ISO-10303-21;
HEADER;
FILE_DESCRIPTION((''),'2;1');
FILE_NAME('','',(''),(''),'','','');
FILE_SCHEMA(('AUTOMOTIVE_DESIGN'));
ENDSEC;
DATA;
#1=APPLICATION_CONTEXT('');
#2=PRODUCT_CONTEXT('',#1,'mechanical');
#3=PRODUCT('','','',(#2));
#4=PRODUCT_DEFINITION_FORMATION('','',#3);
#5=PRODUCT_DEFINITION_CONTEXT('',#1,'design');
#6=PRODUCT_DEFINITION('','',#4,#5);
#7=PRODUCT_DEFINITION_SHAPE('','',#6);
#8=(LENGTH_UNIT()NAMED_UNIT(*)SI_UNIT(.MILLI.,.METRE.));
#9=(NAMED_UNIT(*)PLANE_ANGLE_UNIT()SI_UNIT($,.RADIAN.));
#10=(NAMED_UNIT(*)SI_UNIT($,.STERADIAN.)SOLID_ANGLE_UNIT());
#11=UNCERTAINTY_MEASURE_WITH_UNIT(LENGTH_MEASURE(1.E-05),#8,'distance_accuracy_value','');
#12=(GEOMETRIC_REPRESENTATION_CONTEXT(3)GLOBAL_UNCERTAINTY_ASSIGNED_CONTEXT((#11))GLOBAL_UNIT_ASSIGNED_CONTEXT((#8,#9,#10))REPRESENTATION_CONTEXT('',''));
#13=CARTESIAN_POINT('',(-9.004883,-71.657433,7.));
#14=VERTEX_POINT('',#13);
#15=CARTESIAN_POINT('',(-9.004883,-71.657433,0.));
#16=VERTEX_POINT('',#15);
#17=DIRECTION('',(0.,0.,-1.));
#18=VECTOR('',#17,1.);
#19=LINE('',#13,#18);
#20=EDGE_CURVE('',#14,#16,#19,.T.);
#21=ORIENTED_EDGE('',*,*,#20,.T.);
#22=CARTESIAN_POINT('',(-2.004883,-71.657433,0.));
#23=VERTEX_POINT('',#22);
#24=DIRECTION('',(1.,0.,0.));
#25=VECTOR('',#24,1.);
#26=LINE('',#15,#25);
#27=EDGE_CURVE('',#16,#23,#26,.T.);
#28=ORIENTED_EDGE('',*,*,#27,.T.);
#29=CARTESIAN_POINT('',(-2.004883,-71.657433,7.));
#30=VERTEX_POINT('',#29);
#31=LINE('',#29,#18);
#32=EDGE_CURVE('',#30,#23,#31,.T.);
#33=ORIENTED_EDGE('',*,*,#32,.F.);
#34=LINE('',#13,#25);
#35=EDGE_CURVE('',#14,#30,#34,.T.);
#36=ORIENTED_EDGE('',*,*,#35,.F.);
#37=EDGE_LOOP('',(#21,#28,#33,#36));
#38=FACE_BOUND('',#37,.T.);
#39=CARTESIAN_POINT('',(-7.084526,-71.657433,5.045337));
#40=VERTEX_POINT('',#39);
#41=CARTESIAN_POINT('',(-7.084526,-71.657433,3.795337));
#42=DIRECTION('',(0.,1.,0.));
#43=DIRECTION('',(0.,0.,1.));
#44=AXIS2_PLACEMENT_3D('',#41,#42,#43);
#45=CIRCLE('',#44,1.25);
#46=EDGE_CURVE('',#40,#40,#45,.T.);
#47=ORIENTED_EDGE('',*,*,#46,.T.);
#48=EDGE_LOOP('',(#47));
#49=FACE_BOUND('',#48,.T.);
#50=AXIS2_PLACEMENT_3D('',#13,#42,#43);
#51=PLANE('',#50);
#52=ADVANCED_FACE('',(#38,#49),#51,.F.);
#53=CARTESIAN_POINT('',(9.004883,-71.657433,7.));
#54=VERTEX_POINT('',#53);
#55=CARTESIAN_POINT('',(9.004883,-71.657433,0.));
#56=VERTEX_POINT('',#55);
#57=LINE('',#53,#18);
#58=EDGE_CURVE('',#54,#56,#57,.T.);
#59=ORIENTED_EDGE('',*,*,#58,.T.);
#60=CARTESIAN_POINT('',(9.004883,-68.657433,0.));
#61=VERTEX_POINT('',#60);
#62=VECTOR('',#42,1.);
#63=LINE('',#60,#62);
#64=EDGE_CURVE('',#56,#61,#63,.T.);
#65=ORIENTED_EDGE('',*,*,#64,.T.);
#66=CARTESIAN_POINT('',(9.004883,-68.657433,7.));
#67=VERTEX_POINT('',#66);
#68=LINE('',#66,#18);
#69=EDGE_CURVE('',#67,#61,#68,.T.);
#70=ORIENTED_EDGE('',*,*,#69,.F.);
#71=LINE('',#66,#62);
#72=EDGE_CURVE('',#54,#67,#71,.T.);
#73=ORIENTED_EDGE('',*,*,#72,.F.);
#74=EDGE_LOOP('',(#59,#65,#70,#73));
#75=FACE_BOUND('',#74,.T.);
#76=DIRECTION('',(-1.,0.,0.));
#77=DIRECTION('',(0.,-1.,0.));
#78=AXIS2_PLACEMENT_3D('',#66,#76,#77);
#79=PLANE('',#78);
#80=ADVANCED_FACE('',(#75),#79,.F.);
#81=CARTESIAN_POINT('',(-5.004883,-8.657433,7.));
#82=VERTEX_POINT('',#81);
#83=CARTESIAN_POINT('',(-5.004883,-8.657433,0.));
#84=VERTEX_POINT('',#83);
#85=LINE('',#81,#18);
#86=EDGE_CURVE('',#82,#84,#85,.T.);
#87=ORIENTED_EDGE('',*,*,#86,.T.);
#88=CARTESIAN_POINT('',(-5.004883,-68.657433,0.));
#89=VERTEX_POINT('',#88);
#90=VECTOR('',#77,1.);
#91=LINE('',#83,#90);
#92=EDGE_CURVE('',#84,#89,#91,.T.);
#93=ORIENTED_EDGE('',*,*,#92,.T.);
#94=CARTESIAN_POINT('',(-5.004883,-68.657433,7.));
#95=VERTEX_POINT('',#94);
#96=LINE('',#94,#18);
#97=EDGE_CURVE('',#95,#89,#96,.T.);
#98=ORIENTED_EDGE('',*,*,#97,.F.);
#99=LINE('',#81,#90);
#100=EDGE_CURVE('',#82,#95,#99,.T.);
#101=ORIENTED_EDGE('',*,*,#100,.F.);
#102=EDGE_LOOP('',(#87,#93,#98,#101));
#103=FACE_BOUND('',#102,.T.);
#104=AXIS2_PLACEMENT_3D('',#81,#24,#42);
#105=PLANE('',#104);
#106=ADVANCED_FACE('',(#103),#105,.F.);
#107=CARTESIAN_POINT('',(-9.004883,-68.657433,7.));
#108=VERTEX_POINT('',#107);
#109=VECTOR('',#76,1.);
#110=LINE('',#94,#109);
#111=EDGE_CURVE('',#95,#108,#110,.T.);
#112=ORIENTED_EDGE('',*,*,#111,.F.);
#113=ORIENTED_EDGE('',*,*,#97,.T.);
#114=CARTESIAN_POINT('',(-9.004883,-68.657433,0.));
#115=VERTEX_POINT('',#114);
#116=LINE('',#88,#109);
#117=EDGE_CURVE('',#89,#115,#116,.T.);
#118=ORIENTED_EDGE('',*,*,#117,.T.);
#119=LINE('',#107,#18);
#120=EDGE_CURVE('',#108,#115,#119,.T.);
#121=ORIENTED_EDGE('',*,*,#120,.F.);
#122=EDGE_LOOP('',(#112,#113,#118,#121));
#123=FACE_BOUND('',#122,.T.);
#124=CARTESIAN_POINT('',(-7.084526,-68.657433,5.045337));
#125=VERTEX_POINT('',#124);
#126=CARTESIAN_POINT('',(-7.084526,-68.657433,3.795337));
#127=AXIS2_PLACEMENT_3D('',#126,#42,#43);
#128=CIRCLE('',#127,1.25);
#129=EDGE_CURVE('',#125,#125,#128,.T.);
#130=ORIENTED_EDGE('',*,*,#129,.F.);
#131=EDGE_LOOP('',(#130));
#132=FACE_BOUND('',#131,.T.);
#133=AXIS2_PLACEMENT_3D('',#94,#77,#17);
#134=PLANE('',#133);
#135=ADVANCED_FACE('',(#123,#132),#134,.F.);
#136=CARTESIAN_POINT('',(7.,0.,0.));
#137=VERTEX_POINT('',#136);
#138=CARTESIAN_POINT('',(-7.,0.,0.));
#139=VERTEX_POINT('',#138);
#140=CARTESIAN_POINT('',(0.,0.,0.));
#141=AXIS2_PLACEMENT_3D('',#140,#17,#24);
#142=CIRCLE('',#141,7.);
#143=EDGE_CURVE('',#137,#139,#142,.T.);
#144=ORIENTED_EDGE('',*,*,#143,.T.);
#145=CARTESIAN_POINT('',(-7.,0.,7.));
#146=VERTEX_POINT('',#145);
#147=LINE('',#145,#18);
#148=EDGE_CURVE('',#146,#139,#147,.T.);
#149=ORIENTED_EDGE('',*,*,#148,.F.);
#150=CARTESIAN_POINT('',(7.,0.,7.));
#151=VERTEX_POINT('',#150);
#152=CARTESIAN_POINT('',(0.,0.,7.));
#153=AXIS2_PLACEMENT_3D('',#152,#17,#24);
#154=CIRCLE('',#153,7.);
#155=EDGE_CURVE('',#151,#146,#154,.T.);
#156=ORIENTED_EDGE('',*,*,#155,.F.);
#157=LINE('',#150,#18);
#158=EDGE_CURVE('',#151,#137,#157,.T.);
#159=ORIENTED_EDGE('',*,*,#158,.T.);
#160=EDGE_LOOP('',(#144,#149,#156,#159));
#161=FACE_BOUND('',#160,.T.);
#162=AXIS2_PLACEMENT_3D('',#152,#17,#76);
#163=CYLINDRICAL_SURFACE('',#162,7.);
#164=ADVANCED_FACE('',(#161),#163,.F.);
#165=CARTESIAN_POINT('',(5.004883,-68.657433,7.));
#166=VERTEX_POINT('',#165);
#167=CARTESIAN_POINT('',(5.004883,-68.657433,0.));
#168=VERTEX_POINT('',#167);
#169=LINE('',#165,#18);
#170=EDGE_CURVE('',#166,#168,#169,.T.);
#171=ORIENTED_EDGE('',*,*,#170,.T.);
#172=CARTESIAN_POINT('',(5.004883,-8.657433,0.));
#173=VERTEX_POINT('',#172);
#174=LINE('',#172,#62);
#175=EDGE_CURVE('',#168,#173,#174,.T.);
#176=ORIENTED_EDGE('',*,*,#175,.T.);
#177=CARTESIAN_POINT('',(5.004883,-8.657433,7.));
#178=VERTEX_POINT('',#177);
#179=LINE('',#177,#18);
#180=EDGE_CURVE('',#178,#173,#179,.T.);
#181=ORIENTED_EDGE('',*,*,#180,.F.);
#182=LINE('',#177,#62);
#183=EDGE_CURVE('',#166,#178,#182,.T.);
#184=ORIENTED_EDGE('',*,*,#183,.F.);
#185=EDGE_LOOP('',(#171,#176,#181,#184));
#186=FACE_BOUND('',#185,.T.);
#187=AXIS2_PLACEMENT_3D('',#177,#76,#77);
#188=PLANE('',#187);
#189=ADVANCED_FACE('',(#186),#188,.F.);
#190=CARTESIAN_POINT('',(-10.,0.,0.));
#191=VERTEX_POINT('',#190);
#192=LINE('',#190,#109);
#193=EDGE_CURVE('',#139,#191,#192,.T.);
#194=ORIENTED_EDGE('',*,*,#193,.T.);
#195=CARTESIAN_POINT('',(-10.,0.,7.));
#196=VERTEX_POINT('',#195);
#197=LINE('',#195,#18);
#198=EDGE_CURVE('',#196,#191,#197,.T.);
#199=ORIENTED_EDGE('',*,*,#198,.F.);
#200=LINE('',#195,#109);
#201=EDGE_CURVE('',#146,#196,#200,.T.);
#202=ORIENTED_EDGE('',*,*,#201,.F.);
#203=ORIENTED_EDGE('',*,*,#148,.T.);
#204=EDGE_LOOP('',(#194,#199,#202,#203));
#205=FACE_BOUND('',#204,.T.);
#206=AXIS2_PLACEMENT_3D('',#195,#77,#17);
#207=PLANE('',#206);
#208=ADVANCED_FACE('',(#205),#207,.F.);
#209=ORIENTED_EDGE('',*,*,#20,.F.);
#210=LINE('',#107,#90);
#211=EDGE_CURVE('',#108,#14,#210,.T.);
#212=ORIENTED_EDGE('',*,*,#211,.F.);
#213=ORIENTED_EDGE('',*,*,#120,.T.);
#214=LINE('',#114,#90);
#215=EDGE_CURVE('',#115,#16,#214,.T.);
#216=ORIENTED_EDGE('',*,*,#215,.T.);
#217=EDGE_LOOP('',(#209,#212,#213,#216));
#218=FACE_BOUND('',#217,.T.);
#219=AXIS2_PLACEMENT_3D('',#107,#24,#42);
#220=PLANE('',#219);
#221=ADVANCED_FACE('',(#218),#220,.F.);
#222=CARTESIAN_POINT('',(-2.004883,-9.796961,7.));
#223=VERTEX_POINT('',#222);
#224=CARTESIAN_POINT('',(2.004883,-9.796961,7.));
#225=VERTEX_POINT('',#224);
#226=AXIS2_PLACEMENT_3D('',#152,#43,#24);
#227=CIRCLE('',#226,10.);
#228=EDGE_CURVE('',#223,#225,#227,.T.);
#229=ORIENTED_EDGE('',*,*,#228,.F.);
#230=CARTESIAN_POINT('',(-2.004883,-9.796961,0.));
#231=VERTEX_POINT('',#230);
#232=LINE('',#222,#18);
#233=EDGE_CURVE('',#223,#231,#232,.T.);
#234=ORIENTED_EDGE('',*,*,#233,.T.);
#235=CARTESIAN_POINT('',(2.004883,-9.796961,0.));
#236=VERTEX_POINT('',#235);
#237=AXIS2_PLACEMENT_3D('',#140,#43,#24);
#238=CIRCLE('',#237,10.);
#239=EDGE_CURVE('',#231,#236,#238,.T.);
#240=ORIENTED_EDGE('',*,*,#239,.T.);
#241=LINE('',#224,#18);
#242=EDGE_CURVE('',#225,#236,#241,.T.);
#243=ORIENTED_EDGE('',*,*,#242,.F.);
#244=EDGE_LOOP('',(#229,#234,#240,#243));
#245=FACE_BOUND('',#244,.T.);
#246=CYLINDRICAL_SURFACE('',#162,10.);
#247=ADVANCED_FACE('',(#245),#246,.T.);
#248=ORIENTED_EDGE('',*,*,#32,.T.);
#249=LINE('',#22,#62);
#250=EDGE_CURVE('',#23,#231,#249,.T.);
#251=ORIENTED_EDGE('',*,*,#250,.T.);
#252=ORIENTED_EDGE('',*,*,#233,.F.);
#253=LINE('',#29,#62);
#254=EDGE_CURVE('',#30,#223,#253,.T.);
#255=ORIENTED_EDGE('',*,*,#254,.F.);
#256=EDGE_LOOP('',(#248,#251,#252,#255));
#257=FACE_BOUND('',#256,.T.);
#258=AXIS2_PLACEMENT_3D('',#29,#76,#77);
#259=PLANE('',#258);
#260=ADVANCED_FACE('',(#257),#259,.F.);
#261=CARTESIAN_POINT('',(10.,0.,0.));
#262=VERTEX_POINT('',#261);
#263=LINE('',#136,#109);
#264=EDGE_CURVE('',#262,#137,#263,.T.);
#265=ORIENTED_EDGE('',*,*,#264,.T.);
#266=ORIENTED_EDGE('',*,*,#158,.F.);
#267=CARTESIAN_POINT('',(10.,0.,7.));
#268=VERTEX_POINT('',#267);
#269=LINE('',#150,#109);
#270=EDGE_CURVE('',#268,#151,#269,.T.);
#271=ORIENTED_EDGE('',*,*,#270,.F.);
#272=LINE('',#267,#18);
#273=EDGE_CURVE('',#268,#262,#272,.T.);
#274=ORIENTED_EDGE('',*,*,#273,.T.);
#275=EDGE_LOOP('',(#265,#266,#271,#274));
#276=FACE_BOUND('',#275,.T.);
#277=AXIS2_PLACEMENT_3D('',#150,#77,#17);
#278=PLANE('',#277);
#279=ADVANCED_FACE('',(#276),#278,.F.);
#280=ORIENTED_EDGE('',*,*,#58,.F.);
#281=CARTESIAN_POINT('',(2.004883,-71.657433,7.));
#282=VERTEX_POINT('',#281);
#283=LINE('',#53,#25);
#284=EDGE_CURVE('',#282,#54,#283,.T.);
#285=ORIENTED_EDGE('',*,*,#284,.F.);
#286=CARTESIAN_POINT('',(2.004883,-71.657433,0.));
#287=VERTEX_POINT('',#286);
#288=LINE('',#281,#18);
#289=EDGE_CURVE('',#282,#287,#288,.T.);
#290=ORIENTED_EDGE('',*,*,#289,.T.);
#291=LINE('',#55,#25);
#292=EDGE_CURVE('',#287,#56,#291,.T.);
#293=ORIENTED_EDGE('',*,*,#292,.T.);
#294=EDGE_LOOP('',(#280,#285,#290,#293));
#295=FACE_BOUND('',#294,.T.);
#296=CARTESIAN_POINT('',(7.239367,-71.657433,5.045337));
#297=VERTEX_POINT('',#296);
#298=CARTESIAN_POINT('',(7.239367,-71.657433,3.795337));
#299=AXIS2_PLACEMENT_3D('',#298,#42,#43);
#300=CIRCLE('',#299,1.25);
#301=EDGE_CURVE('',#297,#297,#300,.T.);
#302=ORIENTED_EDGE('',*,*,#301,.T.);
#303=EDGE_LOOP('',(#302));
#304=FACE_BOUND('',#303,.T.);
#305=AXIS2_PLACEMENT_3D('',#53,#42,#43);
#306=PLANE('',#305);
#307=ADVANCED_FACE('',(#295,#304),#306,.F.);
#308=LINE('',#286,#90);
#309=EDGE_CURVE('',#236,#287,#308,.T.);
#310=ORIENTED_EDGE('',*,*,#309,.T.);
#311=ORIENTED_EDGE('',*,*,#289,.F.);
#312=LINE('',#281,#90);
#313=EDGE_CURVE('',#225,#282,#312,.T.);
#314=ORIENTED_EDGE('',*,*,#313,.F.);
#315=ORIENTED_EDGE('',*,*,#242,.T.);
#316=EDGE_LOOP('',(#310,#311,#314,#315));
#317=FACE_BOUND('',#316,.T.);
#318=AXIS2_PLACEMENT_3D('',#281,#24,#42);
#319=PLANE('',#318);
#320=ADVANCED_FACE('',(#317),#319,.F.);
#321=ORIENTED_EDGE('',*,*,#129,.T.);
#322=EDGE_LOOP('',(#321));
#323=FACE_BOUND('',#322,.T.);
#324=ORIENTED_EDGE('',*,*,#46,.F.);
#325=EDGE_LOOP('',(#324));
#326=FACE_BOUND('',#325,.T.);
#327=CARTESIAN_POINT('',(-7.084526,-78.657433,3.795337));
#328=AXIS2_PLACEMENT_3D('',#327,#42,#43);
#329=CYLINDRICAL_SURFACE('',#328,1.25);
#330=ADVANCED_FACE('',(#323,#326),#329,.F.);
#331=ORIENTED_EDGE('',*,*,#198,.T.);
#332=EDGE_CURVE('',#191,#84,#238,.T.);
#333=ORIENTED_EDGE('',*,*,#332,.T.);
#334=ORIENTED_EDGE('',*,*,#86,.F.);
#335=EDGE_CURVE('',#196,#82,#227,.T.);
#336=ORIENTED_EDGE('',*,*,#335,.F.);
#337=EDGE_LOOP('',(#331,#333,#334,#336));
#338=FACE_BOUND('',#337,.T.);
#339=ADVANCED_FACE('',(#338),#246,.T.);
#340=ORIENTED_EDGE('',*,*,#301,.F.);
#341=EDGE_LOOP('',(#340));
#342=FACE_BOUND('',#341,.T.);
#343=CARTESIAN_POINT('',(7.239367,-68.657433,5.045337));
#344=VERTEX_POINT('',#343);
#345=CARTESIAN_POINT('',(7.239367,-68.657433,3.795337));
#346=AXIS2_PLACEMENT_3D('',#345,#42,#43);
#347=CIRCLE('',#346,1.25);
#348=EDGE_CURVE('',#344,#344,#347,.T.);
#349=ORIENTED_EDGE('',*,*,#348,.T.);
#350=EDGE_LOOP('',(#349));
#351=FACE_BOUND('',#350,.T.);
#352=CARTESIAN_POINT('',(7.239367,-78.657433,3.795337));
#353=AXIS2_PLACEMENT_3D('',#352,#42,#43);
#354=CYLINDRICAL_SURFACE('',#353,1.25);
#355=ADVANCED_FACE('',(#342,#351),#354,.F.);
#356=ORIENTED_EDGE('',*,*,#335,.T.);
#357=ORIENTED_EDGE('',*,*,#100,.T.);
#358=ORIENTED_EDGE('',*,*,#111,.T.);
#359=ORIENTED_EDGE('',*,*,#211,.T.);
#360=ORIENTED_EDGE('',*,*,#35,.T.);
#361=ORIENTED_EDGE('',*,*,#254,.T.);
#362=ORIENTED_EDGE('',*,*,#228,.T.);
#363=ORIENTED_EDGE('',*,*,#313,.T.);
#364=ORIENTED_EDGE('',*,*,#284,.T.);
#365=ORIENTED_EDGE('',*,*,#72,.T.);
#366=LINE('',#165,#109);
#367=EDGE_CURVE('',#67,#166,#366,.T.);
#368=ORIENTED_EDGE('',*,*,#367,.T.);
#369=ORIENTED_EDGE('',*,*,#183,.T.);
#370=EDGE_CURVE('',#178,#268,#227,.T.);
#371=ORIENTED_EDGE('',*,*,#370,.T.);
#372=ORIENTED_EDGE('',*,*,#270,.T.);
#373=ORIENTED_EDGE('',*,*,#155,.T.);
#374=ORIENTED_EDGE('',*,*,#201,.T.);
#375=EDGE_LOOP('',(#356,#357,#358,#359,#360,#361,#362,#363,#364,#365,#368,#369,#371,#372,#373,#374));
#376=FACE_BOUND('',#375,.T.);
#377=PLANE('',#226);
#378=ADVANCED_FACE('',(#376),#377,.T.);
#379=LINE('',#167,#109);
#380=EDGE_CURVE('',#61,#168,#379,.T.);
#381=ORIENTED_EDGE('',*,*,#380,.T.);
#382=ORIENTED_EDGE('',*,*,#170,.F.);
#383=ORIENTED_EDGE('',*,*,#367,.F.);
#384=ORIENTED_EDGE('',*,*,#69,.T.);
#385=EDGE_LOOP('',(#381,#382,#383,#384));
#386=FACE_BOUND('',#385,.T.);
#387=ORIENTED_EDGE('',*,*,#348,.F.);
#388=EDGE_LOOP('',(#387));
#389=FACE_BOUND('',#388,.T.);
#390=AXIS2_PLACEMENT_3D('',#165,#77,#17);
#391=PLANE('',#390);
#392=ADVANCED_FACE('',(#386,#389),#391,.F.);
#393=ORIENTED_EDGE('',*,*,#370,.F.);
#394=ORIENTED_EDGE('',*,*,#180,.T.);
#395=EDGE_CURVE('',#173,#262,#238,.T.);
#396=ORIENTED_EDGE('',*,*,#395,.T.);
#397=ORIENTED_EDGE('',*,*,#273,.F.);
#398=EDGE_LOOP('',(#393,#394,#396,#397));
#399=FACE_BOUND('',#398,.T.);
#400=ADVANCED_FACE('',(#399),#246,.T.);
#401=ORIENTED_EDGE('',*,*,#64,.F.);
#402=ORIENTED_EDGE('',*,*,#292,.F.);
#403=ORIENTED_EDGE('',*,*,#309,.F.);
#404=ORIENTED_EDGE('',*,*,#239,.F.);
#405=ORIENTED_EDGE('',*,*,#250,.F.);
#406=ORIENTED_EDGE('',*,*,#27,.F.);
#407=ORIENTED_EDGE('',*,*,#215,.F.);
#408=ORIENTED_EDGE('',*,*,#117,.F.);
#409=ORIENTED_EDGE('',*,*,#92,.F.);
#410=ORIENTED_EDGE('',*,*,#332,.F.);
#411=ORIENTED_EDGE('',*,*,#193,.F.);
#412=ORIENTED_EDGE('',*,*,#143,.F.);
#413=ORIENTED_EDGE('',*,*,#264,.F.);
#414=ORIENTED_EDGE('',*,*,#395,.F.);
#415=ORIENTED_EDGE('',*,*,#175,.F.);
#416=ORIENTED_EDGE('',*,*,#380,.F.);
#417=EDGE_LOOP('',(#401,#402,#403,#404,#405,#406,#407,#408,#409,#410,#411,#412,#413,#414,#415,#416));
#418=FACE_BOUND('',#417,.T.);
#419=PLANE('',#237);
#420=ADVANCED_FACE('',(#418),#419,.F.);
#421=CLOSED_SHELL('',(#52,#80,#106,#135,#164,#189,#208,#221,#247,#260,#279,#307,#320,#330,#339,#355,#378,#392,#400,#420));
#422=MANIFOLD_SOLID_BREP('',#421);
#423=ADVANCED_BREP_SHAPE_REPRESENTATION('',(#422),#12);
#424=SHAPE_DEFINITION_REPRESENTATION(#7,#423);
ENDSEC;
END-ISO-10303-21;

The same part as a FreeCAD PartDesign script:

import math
import FreeCAD as App
import Part
import Sketcher

V = App.Vector
Q = App.Units.Quantity

doc = App.newDocument("Part")
body = doc.addObject("PartDesign::Body", "Body")

# Sketch on XY plane
sketch1 = doc.addObject("Sketcher::SketchObject", "Sketch")
body.addObject(sketch1)
sketch1.AttachmentSupport = (doc.XY_Plane, [""])
sketch1.MapMode = "FlatFace"
sketch1.addGeometry([
    Part.LineSegment(V(-5.004883, -8.657433, 0), V(-5.004883, -68.657433, 0)),  # 0
    Part.LineSegment(V(-5.004883, -68.657433, 0), V(-9.004883, -68.657433, 0)),  # 1
    Part.LineSegment(V(-9.004883, -68.657433, 0), V(-9.004883, -71.657433, 0)),  # 2
    Part.LineSegment(V(-9.004883, -71.657433, 0), V(-2.004883, -71.657433, 0)),  # 3
    Part.LineSegment(V(-2.004883, -71.657433, 0), V(-2.004883, -9.796961, 0)),  # 4
    Part.ArcOfCircle(Part.Circle(V(0, 0, 0), V(0, 0, 1), 10), math.radians(-101.565514), math.radians(-78.434486)),  # 5
    Part.LineSegment(V(2.004883, -9.796961, 0), V(2.004883, -71.657433, 0)),  # 6
    Part.LineSegment(V(2.004883, -71.657433, 0), V(9.004883, -71.657433, 0)),  # 7
    Part.LineSegment(V(9.004883, -71.657433, 0), V(9.004883, -68.657433, 0)),  # 8
    Part.LineSegment(V(9.004883, -68.657433, 0), V(5.004883, -68.657433, 0)),  # 9
    Part.LineSegment(V(5.004883, -68.657433, 0), V(5.004883, -8.657433, 0)),  # 10
    Part.ArcOfCircle(Part.Circle(V(0, 0, 0), V(0, 0, 1), 10), math.radians(-59.967691), math.radians(0)),  # 11
    Part.LineSegment(V(10, 0, 0), V(7, 0, 0)),  # 12
    Part.ArcOfCircle(Part.Circle(V(0, 0, 0), V(0, 0, 1), 7), math.radians(180), math.radians(360)),  # 13
    Part.LineSegment(V(-7, 0, 0), V(-10, 0, 0)),  # 14
    Part.ArcOfCircle(Part.Circle(V(0, 0, 0), V(0, 0, 1), 10), math.radians(-180), math.radians(-120.032309)),  # 15
], False)
sketch1.addConstraint([
    Sketcher.Constraint("Coincident", 0, 2, 1, 1),
    Sketcher.Constraint("Coincident", 1, 2, 2, 1),
    Sketcher.Constraint("Coincident", 2, 2, 3, 1),
    Sketcher.Constraint("Coincident", 3, 2, 4, 1),
    Sketcher.Constraint("Coincident", 4, 2, 5, 1),
    Sketcher.Constraint("Coincident", 5, 2, 6, 1),
    Sketcher.Constraint("Coincident", 6, 2, 7, 1),
    Sketcher.Constraint("Coincident", 7, 2, 8, 1),
    Sketcher.Constraint("Coincident", 8, 2, 9, 1),
    Sketcher.Constraint("Coincident", 9, 2, 10, 1),
    Sketcher.Constraint("Coincident", 10, 2, 11, 1),
    Sketcher.Constraint("Coincident", 11, 2, 12, 1),
    Sketcher.Constraint("Coincident", 12, 2, 13, 2),
    Sketcher.Constraint("Coincident", 13, 1, 14, 1),
    Sketcher.Constraint("Coincident", 14, 2, 15, 1),
    Sketcher.Constraint("Coincident", 15, 2, 0, 1),
    Sketcher.Constraint("Vertical", 0),
    Sketcher.Constraint("Horizontal", 1),
    Sketcher.Constraint("Vertical", 2),
    Sketcher.Constraint("Horizontal", 3),
    Sketcher.Constraint("Vertical", 4),
    Sketcher.Constraint("Vertical", 6),
    Sketcher.Constraint("Horizontal", 7),
    Sketcher.Constraint("Vertical", 8),
    Sketcher.Constraint("Horizontal", 9),
    Sketcher.Constraint("Vertical", 10),
    Sketcher.Constraint("Horizontal", 12),
    Sketcher.Constraint("Horizontal", 14),
    Sketcher.Constraint("Coincident", 5, 3, -1, 1),
    Sketcher.Constraint("Coincident", 11, 3, -1, 1),
    Sketcher.Constraint("Coincident", 13, 3, -1, 1),
    Sketcher.Constraint("Coincident", 15, 3, -1, 1),
    Sketcher.Constraint("Equal", 5, 11),
    Sketcher.Constraint("Equal", 11, 15),
    Sketcher.Constraint("Symmetric", 3, 2, 6, 2, -2),
    Sketcher.Constraint("Symmetric", 1, 2, 8, 2, -2),
    Sketcher.Constraint("PointOnObject", 11, 2, -1),
    Sketcher.Constraint("PointOnObject", 13, 1, -1),
    Sketcher.Constraint("Horizontal", 10, 2, 15, 2),
    Sketcher.Constraint("Equal", 14, 2),
    Sketcher.Constraint("Radius", 5, Q("10 mm")),
    Sketcher.Constraint("Radius", 13, Q("7 mm")),
    Sketcher.Constraint("DistanceX", 1, 2, 1, 1, Q("4 mm")),
    Sketcher.Constraint("DistanceX", 3, 1, 3, 2, Q("7 mm")),
    Sketcher.Constraint("DistanceY", 0, 2, 0, 1, Q("60 mm")),
    Sketcher.Constraint("DistanceY", 4, 1, 4, 2, Q("61.860472 mm")),
])
pad1 = doc.addObject("PartDesign::Pad", "Pad")
body.addObject(pad1)
pad1.Profile = sketch1
pad1.Length = 7

# Sketch on XZ plane
sketch2 = doc.addObject("Sketcher::SketchObject", "Sketch001")
body.addObject(sketch2)
sketch2.AttachmentSupport = (doc.XZ_Plane, [""])
sketch2.MapMode = "FlatFace"
sketch2.AttachmentOffset = App.Placement(V(0, 0, 68.657433), App.Rotation())
sketch2.addGeometry([
    Part.Circle(V(-7.084526, 3.795337, 0), V(0, 0, 1), 1.25),
    Part.Circle(V(7.239367, 3.795337, 0), V(0, 0, 1), 1.25),
], False)
sketch2.addConstraint([
    Sketcher.Constraint("Equal", 0, 1),
    Sketcher.Constraint("Horizontal", 0, 3, 1, 3),
    Sketcher.Constraint("Diameter", 0, Q("2.5 mm")),
    Sketcher.Constraint("DistanceX", 0, 3, -1, 1, Q("7.084526 mm")),
    Sketcher.Constraint("DistanceY", -1, 1, 0, 3, Q("3.795337 mm")),
    Sketcher.Constraint("DistanceX", -1, 1, 1, 3, Q("7.239367 mm")),
])
pocket1 = doc.addObject("PartDesign::Pocket", "Pocket")
body.addObject(pocket1)
pocket1.Profile = sketch2
pocket1.Length = 10
pocket1.Reversed = True

doc.recompute()
